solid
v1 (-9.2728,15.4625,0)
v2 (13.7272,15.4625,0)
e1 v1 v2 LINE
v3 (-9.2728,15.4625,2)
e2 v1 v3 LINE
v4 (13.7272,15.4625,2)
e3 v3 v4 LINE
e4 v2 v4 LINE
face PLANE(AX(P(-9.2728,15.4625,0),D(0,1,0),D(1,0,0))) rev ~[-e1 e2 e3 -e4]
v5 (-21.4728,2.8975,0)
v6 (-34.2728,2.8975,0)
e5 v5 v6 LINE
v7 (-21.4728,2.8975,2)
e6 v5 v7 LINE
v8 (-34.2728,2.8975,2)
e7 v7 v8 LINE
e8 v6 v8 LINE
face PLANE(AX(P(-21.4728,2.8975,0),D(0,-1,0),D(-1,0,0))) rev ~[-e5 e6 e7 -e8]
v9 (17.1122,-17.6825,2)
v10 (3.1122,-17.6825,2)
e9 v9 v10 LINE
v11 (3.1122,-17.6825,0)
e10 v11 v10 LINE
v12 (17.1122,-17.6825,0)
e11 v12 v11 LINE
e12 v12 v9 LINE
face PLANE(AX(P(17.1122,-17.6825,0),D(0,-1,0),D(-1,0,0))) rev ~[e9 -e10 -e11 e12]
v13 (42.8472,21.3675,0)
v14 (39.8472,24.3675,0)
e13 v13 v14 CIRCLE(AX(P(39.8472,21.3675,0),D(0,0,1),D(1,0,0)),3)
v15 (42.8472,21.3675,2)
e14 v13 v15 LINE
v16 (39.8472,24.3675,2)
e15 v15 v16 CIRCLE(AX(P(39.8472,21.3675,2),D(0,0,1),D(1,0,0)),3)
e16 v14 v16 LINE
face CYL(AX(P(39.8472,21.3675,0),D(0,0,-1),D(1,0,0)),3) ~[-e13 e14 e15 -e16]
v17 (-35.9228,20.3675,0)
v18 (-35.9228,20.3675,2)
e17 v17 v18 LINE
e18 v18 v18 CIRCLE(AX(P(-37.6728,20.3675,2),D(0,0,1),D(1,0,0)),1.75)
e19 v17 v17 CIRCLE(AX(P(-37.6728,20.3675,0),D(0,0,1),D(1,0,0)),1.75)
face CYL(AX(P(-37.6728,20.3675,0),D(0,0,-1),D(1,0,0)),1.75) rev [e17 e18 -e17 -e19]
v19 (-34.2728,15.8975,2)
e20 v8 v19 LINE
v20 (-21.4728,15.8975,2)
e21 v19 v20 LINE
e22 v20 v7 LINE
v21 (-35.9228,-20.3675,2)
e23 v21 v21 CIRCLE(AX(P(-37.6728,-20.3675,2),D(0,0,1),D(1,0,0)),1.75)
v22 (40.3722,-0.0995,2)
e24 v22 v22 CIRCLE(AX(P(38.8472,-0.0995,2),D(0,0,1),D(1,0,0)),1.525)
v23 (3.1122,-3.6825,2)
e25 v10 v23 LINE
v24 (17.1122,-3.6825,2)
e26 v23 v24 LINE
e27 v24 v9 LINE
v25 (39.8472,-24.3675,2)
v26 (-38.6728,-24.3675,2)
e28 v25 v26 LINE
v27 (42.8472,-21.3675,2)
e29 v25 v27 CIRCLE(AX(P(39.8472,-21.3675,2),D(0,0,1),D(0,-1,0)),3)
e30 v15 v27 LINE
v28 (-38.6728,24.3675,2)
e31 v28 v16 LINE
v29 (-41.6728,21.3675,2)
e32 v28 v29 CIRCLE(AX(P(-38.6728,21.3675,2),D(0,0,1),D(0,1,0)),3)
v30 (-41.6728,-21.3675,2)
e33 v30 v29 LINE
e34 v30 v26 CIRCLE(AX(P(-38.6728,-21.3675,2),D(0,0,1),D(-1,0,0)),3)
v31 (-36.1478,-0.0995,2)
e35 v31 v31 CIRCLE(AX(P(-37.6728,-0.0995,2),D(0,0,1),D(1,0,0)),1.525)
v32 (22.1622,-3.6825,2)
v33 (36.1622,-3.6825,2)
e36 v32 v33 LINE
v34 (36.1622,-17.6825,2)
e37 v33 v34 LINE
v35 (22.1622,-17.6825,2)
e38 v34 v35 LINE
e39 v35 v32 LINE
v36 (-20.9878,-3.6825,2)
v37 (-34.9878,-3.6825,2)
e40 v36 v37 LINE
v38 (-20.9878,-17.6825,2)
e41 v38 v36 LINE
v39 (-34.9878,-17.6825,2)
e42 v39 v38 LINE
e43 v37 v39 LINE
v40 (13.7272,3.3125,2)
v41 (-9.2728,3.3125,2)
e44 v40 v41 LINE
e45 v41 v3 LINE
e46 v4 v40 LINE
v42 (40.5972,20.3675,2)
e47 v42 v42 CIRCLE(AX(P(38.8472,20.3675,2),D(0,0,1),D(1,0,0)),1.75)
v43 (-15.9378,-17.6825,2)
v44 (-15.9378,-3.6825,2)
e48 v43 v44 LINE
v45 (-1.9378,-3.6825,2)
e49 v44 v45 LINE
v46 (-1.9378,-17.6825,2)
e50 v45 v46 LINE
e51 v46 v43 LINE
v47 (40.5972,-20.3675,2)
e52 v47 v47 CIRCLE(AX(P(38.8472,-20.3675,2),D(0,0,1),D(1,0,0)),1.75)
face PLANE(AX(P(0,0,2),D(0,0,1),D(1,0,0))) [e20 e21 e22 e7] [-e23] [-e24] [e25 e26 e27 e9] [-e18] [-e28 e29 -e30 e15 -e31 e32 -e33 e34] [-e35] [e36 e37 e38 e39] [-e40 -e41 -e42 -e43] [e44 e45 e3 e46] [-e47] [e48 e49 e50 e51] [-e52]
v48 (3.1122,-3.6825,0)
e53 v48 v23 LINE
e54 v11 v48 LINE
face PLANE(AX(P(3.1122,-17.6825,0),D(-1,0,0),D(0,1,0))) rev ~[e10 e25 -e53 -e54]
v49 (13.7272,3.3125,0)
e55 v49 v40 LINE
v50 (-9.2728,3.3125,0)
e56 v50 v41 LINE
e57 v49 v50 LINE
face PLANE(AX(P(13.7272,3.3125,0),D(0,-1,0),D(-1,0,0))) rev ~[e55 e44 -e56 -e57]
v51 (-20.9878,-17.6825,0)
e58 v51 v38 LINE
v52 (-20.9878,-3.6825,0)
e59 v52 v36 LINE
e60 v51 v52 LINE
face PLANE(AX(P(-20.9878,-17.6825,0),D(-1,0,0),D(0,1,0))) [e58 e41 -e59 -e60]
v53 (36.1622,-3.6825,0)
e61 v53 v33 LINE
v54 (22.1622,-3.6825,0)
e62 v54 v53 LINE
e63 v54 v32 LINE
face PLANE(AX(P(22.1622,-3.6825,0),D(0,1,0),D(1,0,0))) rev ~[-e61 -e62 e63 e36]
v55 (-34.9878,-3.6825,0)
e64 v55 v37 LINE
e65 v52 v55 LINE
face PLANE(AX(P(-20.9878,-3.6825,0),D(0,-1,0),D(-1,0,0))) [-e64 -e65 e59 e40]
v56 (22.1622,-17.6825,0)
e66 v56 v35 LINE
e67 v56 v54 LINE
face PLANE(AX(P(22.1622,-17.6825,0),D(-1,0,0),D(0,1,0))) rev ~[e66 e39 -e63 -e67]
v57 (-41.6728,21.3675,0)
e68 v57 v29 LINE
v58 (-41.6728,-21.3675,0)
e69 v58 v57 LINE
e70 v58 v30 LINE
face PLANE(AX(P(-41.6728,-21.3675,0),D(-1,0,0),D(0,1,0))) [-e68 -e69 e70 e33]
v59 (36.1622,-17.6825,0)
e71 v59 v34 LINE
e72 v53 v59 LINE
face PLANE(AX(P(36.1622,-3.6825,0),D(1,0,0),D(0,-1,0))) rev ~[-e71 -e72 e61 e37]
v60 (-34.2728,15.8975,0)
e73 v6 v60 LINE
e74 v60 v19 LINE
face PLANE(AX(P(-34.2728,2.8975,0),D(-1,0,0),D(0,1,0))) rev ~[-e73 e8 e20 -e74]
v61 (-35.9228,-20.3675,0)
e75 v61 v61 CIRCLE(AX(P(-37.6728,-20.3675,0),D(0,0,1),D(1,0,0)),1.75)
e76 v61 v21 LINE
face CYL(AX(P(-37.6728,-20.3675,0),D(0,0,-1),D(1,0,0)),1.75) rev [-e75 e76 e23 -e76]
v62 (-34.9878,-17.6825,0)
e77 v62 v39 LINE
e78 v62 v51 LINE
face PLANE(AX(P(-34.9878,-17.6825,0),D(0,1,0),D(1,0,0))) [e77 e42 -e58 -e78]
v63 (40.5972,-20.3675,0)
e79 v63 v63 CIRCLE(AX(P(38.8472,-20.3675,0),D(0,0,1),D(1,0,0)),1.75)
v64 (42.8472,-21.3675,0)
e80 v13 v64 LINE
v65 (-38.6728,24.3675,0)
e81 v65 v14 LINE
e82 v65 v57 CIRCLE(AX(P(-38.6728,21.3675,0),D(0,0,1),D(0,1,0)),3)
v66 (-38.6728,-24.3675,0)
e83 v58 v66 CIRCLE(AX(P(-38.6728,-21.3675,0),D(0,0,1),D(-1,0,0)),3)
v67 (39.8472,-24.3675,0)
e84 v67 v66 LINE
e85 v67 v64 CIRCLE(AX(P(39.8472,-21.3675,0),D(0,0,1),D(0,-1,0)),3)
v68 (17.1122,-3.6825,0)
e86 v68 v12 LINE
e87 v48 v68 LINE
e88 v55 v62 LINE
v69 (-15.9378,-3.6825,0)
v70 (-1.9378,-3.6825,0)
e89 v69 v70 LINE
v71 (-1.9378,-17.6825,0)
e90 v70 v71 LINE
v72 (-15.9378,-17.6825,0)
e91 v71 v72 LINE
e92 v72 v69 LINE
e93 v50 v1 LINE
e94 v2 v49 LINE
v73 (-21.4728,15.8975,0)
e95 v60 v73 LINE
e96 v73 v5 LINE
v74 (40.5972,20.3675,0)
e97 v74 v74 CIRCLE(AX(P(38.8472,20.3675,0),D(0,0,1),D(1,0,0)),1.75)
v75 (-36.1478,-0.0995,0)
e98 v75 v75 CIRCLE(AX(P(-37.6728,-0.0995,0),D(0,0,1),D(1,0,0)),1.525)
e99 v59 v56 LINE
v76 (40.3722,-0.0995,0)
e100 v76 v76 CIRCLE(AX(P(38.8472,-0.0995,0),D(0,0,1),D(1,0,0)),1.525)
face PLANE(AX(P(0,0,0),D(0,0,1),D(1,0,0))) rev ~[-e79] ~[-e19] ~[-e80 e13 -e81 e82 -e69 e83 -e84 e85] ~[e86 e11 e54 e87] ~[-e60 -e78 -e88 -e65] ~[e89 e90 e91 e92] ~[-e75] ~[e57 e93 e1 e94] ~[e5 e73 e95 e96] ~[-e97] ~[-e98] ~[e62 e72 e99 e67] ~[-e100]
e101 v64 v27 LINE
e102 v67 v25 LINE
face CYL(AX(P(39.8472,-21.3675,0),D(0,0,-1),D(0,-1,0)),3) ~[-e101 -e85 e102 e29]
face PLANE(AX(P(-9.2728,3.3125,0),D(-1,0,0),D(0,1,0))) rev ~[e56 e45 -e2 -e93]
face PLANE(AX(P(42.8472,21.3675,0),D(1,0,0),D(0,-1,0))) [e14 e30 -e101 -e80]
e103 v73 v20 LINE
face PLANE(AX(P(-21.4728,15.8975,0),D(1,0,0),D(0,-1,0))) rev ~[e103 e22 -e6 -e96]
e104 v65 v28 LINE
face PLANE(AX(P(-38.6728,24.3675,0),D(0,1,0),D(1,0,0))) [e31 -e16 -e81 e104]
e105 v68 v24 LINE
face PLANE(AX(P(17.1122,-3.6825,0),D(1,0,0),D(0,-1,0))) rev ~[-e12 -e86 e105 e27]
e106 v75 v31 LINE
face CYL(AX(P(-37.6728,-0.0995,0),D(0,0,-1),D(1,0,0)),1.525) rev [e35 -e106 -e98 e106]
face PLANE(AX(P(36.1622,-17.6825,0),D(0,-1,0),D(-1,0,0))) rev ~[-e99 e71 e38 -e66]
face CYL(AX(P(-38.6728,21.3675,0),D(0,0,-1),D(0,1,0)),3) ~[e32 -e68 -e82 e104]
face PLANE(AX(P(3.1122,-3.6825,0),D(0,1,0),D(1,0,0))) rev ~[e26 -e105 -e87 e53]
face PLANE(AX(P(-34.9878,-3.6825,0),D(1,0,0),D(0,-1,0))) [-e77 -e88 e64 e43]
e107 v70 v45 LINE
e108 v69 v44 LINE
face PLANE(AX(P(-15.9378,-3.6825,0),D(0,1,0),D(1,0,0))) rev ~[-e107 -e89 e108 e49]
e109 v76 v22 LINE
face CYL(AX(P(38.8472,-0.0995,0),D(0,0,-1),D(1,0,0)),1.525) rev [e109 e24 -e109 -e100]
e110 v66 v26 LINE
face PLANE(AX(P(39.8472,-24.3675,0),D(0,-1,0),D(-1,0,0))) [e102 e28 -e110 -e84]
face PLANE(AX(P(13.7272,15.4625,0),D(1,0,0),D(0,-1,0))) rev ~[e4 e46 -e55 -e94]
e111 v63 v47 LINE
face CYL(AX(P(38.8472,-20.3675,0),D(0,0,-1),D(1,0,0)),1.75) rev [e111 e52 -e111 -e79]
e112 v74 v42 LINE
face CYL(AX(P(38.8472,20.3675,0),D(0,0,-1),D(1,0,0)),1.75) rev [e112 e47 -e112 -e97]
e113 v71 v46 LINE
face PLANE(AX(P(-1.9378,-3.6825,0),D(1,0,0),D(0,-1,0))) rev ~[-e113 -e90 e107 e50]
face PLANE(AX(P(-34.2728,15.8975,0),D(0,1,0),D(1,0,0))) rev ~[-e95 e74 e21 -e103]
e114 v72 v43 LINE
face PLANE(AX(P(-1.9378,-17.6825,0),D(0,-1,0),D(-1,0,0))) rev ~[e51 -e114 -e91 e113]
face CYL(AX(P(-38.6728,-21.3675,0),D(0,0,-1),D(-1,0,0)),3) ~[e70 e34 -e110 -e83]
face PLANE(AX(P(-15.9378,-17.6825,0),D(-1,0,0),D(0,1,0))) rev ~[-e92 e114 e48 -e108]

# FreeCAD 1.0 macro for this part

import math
import FreeCAD as App
import Part
import Sketcher
from FreeCAD import Vector

doc = App.newDocument("Part")
body = doc.addObject("PartDesign::Body", "Body")

sketch1 = body.newObject("Sketcher::SketchObject", "Sketch")
sketch1.AttachmentSupport = (doc.getObject("XY_Plane"), [""])
sketch1.MapMode = "FlatFace"
sketch1.addGeometry(Part.LineSegment(Vector(39.8, 24.4, 0), Vector(-38.7, 24.4, 0)), False)
sketch1.addGeometry(Part.ArcOfCircle(Part.Circle(Vector(-38.7, 21.4, 0), Vector(0, 0, 1), 3), math.radians(90), math.radians(180)), False)
sketch1.addGeometry(Part.LineSegment(Vector(-41.7, 21.4, 0), Vector(-41.7, -21.4, 0)), False)
sketch1.addGeometry(Part.ArcOfCircle(Part.Circle(Vector(-38.7, -21.4, 0), Vector(0, 0, 1), 3), math.radians(180), math.radians(270)), False)
sketch1.addGeometry(Part.LineSegment(Vector(-38.7, -24.4, 0), Vector(39.8, -24.4, 0)), False)
sketch1.addGeometry(Part.ArcOfCircle(Part.Circle(Vector(39.8, -21.4, 0), Vector(0, 0, 1), 3), math.radians(-90), math.radians(0)), False)
sketch1.addGeometry(Part.LineSegment(Vector(42.8, -21.4, 0), Vector(42.8, 21.4, 0)), False)
sketch1.addGeometry(Part.ArcOfCircle(Part.Circle(Vector(39.8, 21.4, 0), Vector(0, 0, 1), 3), math.radians(0), math.radians(90)), False)
sketch1.addGeometry(Part.Circle(Vector(-37.7, -20.4, 0), Vector(0, 0, 1), 1.8), False)
sketch1.addGeometry(Part.LineSegment(Vector(-35, -3.7, 0), Vector(-21, -3.7, 0)), False)
sketch1.addGeometry(Part.LineSegment(Vector(-21, -3.7, 0), Vector(-21, -17.7, 0)), False)
sketch1.addGeometry(Part.LineSegment(Vector(-21, -17.7, 0), Vector(-35, -17.7, 0)), False)
sketch1.addGeometry(Part.LineSegment(Vector(-35, -17.7, 0), Vector(-35, -3.7, 0)), False)
sketch1.addGeometry(Part.Circle(Vector(-37.7, -0.1, 0), Vector(0, 0, 1), 1.5), False)
sketch1.addGeometry(Part.LineSegment(Vector(-1.9, -3.7, 0), Vector(-1.9, -17.7, 0)), False)
sketch1.addGeometry(Part.LineSegment(Vector(-1.9, -17.7, 0), Vector(-15.9, -17.7, 0)), False)
sketch1.addGeometry(Part.LineSegment(Vector(-15.9, -17.7, 0), Vector(-15.9, -3.7, 0)), False)
sketch1.addGeometry(Part.LineSegment(Vector(-15.9, -3.7, 0), Vector(-1.9, -3.7, 0)), False)
sketch1.addGeometry(Part.Circle(Vector(38.8, -20.4, 0), Vector(0, 0, 1), 1.8), False)
sketch1.addGeometry(Part.LineSegment(Vector(17.1, -3.7, 0), Vector(17.1, -17.7, 0)), False)
sketch1.addGeometry(Part.LineSegment(Vector(17.1, -17.7, 0), Vector(3.1, -17.7, 0)), False)
sketch1.addGeometry(Part.LineSegment(Vector(3.1, -17.7, 0), Vector(3.1, -3.7, 0)), False)
sketch1.addGeometry(Part.LineSegment(Vector(3.1, -3.7, 0), Vector(17.1, -3.7, 0)), False)
sketch1.addGeometry(Part.LineSegment(Vector(36.2, -3.7, 0), Vector(36.2, -17.7, 0)), False)
sketch1.addGeometry(Part.LineSegment(Vector(36.2, -17.7, 0), Vector(22.2, -17.7, 0)), False)
sketch1.addGeometry(Part.LineSegment(Vector(22.2, -17.7, 0), Vector(22.2, -3.7, 0)), False)
sketch1.addGeometry(Part.LineSegment(Vector(22.2, -3.7, 0), Vector(36.2, -3.7, 0)), False)
sketch1.addGeometry(Part.Circle(Vector(38.8, -0.1, 0), Vector(0, 0, 1), 1.5), False)
sketch1.addGeometry(Part.LineSegment(Vector(-21.5, 15.9, 0), Vector(-21.5, 2.9, 0)), False)
sketch1.addGeometry(Part.LineSegment(Vector(-21.5, 2.9, 0), Vector(-34.3, 2.9, 0)), False)
sketch1.addGeometry(Part.LineSegment(Vector(-34.3, 2.9, 0), Vector(-34.3, 15.9, 0)), False)
sketch1.addGeometry(Part.LineSegment(Vector(-34.3, 15.9, 0), Vector(-21.5, 15.9, 0)), False)
sketch1.addGeometry(Part.Circle(Vector(-37.7, 20.4, 0), Vector(0, 0, 1), 1.8), False)
sketch1.addGeometry(Part.LineSegment(Vector(13.7, 15.5, 0), Vector(13.7, 3.3, 0)), False)
sketch1.addGeometry(Part.LineSegment(Vector(13.7, 3.3, 0), Vector(-9.3, 3.3, 0)), False)
sketch1.addGeometry(Part.LineSegment(Vector(-9.3, 3.3, 0), Vector(-9.3, 15.5, 0)), False)
sketch1.addGeometry(Part.LineSegment(Vector(-9.3, 15.5, 0), Vector(13.7, 15.5, 0)), False)
sketch1.addGeometry(Part.Circle(Vector(38.8, 20.4, 0), Vector(0, 0, 1), 1.8), False)
sketch1.addConstraint(Sketcher.Constraint("Tangent", 0, 2, 1, 1))
sketch1.addConstraint(Sketcher.Constraint("Tangent", 1, 2, 2, 1))
sketch1.addConstraint(Sketcher.Constraint("Tangent", 2, 2, 3, 1))
sketch1.addConstraint(Sketcher.Constraint("Tangent", 3, 2, 4, 1))
sketch1.addConstraint(Sketcher.Constraint("Tangent", 4, 2, 5, 1))
sketch1.addConstraint(Sketcher.Constraint("Tangent", 5, 2, 6, 1))
sketch1.addConstraint(Sketcher.Constraint("Tangent", 6, 2, 7, 1))
sketch1.addConstraint(Sketcher.Constraint("Tangent", 7, 2, 0, 1))
sketch1.addConstraint(Sketcher.Constraint("Coincident", 9, 2, 10, 1))
sketch1.addConstraint(Sketcher.Constraint("Coincident", 10, 2, 11, 1))
sketch1.addConstraint(Sketcher.Constraint("Coincident", 11, 2, 12, 1))
sketch1.addConstraint(Sketcher.Constraint("Coincident", 12, 2, 9, 1))
sketch1.addConstraint(Sketcher.Constraint("Coincident", 14, 2, 15, 1))
sketch1.addConstraint(Sketcher.Constraint("Coincident", 15, 2, 16, 1))
sketch1.addConstraint(Sketcher.Constraint("Coincident", 16, 2, 17, 1))
sketch1.addConstraint(Sketcher.Constraint("Coincident", 17, 2, 14, 1))
sketch1.addConstraint(Sketcher.Constraint("Coincident", 19, 2, 20, 1))
sketch1.addConstraint(Sketcher.Constraint("Coincident", 20, 2, 21, 1))
sketch1.addConstraint(Sketcher.Constraint("Coincident", 21, 2, 22, 1))
sketch1.addConstraint(Sketcher.Constraint("Coincident", 22, 2, 19, 1))
sketch1.addConstraint(Sketcher.Constraint("Coincident", 23, 2, 24, 1))
sketch1.addConstraint(Sketcher.Constraint("Coincident", 24, 2, 25, 1))
sketch1.addConstraint(Sketcher.Constraint("Coincident", 25, 2, 26, 1))
sketch1.addConstraint(Sketcher.Constraint("Coincident", 26, 2, 23, 1))
sketch1.addConstraint(Sketcher.Constraint("Coincident", 28, 2, 29, 1))
sketch1.addConstraint(Sketcher.Constraint("Coincident", 29, 2, 30, 1))
sketch1.addConstraint(Sketcher.Constraint("Coincident", 30, 2, 31, 1))
sketch1.addConstraint(Sketcher.Constraint("Coincident", 31, 2, 28, 1))
sketch1.addConstraint(Sketcher.Constraint("Coincident", 33, 2, 34, 1))
sketch1.addConstraint(Sketcher.Constraint("Coincident", 34, 2, 35, 1))
sketch1.addConstraint(Sketcher.Constraint("Coincident", 35, 2, 36, 1))
sketch1.addConstraint(Sketcher.Constraint("Coincident", 36, 2, 33, 1))
sketch1.addConstraint(Sketcher.Constraint("Horizontal", 0))
sketch1.addConstraint(Sketcher.Constraint("Vertical", 2))
sketch1.addConstraint(Sketcher.Constraint("Horizontal", 4))
sketch1.addConstraint(Sketcher.Constraint("Vertical", 6))
sketch1.addConstraint(Sketcher.Constraint("Horizontal", 9))
sketch1.addConstraint(Sketcher.Constraint("Vertical", 10))
sketch1.addConstraint(Sketcher.Constraint("Horizontal", 11))
sketch1.addConstraint(Sketcher.Constraint("Vertical", 12))
sketch1.addConstraint(Sketcher.Constraint("Vertical", 14))
sketch1.addConstraint(Sketcher.Constraint("Horizontal", 15))
sketch1.addConstraint(Sketcher.Constraint("Vertical", 16))
sketch1.addConstraint(Sketcher.Constraint("Horizontal", 17))
sketch1.addConstraint(Sketcher.Constraint("Vertical", 19))
sketch1.addConstraint(Sketcher.Constraint("Horizontal", 20))
sketch1.addConstraint(Sketcher.Constraint("Vertical", 21))
sketch1.addConstraint(Sketcher.Constraint("Horizontal", 22))
sketch1.addConstraint(Sketcher.Constraint("Vertical", 23))
sketch1.addConstraint(Sketcher.Constraint("Horizontal", 24))
sketch1.addConstraint(Sketcher.Constraint("Vertical", 25))
sketch1.addConstraint(Sketcher.Constraint("Horizontal", 26))
sketch1.addConstraint(Sketcher.Constraint("Vertical", 28))
sketch1.addConstraint(Sketcher.Constraint("Horizontal", 29))
sketch1.addConstraint(Sketcher.Constraint("Vertical", 30))
sketch1.addConstraint(Sketcher.Constraint("Horizontal", 31))
sketch1.addConstraint(Sketcher.Constraint("Vertical", 33))
sketch1.addConstraint(Sketcher.Constraint("Horizontal", 34))
sketch1.addConstraint(Sketcher.Constraint("Vertical", 35))
sketch1.addConstraint(Sketcher.Constraint("Horizontal", 36))
sketch1.addConstraint(Sketcher.Constraint("Equal", 1, 3))
sketch1.addConstraint(Sketcher.Constraint("Equal", 3, 5))
sketch1.addConstraint(Sketcher.Constraint("Equal", 5, 7))
sketch1.addConstraint(Sketcher.Constraint("Equal", 8, 18))
sketch1.addConstraint(Sketcher.Constraint("Equal", 13, 27))
sketch1.addConstraint(Sketcher.Constraint("Equal", 18, 32))
sketch1.addConstraint(Sketcher.Constraint("Equal", 32, 37))
sketch1.addConstraint(Sketcher.Constraint("Symmetric", 8, 3, 32, 3, -1))
sketch1.addConstraint(Sketcher.Constraint("Symmetric", 18, 3, 37, 3, -1))
sketch1.addConstraint(Sketcher.Constraint("Horizontal", 8, 3, 18, 3))
sketch1.addConstraint(Sketcher.Constraint("Horizontal", 13, 3, 27, 3))
sketch1.addConstraint(Sketcher.Constraint("Horizontal", 11, 2, 14, 2))
sketch1.addConstraint(Sketcher.Constraint("Horizontal", 12, 2, 16, 2))
sketch1.addConstraint(Sketcher.Constraint("Horizontal", 15, 2, 19, 2))
sketch1.addConstraint(Sketcher.Constraint("Horizontal", 17, 2, 21, 2))
sketch1.addConstraint(Sketcher.Constraint("Horizontal", 20, 2, 23, 2))
sketch1.addConstraint(Sketcher.Constraint("Horizontal", 22, 2, 25, 2))
sketch1.addConstraint(Sketcher.Constraint("Vertical", 8, 3, 13, 3))
sketch1.addConstraint(Sketcher.Constraint("Vertical", 18, 3, 27, 3))
sketch1.addConstraint(Sketcher.Constraint("Equal", 11, 15))
sketch1.addConstraint(Sketcher.Constraint("Equal", 17, 20))
sketch1.addConstraint(Sketcher.Constraint("Equal", 22, 24))
sketch1.addConstraint(Sketcher.Constraint("Equal", 26, 10))
sketch1.addConstraint(Sketcher.Constraint("Radius", 1, 3.0))
sketch1.addConstraint(Sketcher.Constraint("Diameter", 8, 3.5))
sketch1.addConstraint(Sketcher.Constraint("Diameter", 13, 3.05))
sketch1.addConstraint(Sketcher.Constraint("DistanceX", 9, 1, 9, 2, 14.0))
sketch1.addConstraint(Sketcher.Constraint("DistanceX", 34, 2, 34, 1, 23.0))
sketch1.addConstraint(Sketcher.Constraint("DistanceY", 28, 2, 28, 1, 13.0))
sketch1.addConstraint(Sketcher.Constraint("DistanceX", 29, 2, 29, 1, 12.8))
sketch1.addConstraint(Sketcher.Constraint("DistanceY", 32, 3, 0, 2, 4.0))
sketch1.addConstraint(Sketcher.Constraint("DistanceX", 1, 2, 32, 3, 4.0))
sketch1.addConstraint(Sketcher.Constraint("DistanceY", 3, 2, 8, 3, 4.0))
sketch1.addConstraint(Sketcher.Constraint("DistanceX", 18, 3, 5, 2, 4.0))
sketch1.addConstraint(Sketcher.Constraint("DistanceY", 33, 2, 33, 1, 12.15))
sketch1.addConstraint(Sketcher.Constraint("DistanceX", 10, 2, 14, 2, 19.05))
sketch1.addConstraint(Sketcher.Constraint("DistanceX", 14, 2, 19, 2, 19.05))
sketch1.addConstraint(Sketcher.Constraint("DistanceX", 21, 2, 25, 2, 19.05))
sketch1.addConstraint(Sketcher.Constraint("DistanceY", 8, 3, 13, 3, 20.268))
sketch1.addConstraint(Sketcher.Constraint("DistanceY", 3, 2, 10, 2, 6.685))
sketch1.addConstraint(Sketcher.Constraint("DistanceX", 2, 2, 11, 2, 6.685))
sketch1.addConstraint(Sketcher.Constraint("DistanceX", 23, 2, 5, 2, 6.685))
sketch1.addConstraint(Sketcher.Constraint("DistanceX", 13, 3, 28, 2, 16.2))
sketch1.addConstraint(Sketcher.Constraint("DistanceX", 28, 2, 34, 2, 12.2))
sketch1.addConstraint(Sketcher.Constraint("DistanceY", 2, 2, 2, 1, 42.735))
sketch1.addConstraint(Sketcher.Constraint("DistanceY", 9, 2, 28, 2, 6.58))
sketch1.addConstraint(Sketcher.Constraint("DistanceY", 22, 2, 33, 2, 6.995))
sketch1.addConstraint(Sketcher.Constraint("DistanceX", 1, 3, -1, 1, 38.6728))
pad1 = body.newObject("PartDesign::Pad", "Pad")
pad1.Profile = sketch1
pad1.Length = 2

doc.recompute()
